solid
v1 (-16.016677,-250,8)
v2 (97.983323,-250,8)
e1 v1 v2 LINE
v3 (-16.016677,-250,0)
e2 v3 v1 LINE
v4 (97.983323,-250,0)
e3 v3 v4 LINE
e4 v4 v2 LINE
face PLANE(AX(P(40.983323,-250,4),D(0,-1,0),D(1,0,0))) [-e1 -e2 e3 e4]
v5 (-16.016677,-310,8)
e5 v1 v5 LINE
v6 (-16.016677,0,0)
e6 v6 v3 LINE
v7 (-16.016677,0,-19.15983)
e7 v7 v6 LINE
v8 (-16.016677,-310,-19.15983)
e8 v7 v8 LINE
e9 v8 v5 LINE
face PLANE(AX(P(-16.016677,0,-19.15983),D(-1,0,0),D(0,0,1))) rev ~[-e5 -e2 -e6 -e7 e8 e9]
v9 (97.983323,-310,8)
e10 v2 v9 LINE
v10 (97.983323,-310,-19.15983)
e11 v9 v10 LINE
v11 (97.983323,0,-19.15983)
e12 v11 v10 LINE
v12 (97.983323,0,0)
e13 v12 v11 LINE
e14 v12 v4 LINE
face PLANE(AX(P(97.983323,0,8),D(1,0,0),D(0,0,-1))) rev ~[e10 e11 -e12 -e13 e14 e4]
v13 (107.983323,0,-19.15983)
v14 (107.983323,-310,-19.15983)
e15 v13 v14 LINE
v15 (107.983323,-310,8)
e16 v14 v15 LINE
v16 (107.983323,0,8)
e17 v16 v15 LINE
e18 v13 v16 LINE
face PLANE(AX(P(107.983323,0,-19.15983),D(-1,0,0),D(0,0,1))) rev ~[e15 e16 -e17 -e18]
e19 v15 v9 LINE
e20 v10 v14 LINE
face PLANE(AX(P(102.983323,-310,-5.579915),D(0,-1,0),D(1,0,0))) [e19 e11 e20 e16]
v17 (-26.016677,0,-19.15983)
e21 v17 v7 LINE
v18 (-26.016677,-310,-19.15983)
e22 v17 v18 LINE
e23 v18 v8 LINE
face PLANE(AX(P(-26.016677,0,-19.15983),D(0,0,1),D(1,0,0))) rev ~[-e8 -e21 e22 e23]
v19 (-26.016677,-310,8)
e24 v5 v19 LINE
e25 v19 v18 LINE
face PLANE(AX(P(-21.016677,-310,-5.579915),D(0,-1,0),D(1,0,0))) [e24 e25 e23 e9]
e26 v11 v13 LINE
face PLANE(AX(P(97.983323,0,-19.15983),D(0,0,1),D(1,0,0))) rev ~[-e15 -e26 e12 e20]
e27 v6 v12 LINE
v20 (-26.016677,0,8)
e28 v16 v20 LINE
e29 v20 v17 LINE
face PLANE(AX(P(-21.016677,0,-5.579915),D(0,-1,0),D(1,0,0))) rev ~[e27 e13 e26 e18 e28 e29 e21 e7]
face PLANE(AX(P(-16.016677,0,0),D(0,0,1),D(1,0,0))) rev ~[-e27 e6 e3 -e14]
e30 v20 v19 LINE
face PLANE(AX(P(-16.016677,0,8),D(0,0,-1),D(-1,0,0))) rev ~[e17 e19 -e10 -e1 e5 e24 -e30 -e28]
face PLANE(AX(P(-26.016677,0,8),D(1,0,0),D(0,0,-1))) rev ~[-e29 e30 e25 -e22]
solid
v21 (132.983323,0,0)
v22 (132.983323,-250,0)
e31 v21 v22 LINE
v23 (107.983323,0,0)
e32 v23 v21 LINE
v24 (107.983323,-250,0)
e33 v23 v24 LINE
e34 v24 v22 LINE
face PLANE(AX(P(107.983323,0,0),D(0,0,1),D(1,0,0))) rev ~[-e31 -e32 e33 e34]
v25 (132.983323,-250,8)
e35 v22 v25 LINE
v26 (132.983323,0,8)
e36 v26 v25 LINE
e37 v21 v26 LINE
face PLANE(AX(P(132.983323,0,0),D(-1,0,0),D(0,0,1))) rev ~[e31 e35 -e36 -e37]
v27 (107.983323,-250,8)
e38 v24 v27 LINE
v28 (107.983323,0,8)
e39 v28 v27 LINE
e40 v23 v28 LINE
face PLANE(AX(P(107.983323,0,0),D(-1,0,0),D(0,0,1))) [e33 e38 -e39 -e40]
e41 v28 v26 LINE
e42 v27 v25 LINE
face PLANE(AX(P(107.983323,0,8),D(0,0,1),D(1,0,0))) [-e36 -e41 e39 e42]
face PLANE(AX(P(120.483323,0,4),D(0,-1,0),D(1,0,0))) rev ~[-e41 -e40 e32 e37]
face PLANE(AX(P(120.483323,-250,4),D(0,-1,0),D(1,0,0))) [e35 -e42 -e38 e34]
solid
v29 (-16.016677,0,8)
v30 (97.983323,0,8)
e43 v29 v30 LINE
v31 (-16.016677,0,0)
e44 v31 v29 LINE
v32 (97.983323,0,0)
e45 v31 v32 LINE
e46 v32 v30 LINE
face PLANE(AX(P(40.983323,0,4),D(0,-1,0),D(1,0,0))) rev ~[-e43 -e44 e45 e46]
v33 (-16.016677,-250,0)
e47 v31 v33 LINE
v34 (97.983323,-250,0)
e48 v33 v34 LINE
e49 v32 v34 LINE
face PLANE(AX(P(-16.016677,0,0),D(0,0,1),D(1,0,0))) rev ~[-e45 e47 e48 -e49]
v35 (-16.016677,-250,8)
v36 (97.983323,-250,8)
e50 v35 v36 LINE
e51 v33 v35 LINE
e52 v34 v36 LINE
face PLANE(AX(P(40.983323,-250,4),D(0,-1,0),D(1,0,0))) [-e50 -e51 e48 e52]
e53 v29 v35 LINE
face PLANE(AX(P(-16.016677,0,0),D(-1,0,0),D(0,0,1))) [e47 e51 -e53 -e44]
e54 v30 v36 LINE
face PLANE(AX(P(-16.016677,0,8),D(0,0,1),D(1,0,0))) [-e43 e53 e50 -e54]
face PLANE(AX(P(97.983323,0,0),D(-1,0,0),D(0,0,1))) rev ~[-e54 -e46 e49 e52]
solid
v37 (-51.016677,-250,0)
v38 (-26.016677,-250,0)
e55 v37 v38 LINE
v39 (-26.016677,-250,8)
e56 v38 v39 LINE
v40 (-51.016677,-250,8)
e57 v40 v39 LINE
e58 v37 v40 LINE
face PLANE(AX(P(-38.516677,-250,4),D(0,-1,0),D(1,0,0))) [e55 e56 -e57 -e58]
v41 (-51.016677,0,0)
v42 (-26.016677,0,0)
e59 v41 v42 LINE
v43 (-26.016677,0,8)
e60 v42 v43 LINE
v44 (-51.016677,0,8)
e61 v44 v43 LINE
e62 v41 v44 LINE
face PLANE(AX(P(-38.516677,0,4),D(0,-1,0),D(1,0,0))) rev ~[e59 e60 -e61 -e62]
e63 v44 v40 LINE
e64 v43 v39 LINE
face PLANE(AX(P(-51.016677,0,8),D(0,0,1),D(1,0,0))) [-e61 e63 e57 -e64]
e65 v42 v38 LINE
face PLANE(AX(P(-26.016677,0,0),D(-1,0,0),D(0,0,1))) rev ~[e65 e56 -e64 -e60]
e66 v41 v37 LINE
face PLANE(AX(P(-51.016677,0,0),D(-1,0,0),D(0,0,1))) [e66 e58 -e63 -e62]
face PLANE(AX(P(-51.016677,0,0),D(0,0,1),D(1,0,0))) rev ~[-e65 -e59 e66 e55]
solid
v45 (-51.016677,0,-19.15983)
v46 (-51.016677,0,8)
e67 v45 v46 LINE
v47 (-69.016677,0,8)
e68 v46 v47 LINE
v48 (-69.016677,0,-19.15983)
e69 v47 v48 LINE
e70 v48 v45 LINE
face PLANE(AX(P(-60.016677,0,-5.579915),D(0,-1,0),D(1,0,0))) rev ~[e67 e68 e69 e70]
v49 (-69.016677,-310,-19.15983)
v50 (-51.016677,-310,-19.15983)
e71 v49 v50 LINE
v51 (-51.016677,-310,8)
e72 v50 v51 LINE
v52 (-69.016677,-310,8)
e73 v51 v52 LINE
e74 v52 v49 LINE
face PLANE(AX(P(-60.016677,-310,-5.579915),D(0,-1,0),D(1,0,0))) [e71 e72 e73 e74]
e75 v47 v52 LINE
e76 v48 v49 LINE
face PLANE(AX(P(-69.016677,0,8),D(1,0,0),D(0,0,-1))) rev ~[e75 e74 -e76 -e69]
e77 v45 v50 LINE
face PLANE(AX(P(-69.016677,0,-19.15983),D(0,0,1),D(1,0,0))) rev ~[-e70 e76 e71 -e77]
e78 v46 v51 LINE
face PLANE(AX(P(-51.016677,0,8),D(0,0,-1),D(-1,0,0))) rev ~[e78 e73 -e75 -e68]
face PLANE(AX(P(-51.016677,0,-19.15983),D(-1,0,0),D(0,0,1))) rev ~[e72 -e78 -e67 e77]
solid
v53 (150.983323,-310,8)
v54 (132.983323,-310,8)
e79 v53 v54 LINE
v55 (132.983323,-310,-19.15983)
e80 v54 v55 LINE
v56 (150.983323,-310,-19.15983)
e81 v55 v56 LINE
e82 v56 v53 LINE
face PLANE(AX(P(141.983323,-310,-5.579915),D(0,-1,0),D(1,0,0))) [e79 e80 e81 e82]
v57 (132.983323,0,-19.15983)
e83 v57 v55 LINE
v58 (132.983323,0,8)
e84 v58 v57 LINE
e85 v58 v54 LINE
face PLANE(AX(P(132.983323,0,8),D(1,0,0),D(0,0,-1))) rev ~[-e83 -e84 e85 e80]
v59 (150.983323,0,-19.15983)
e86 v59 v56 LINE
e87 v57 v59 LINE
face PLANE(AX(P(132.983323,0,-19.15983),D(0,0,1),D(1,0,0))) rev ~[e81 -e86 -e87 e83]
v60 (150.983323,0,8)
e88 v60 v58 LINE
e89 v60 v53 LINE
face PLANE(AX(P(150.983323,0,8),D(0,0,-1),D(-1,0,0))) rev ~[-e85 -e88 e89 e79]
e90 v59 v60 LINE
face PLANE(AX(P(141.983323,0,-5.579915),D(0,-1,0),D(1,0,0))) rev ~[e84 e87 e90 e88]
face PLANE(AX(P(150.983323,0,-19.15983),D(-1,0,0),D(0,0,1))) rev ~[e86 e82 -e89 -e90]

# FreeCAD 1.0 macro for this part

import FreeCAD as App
import Part
import Sketcher


def add_polygon(sketch, points):
    """Adds a closed chain of lines whose ends are joined by coincident constraints."""
    first, n = sketch.GeometryCount, len(points)
    for a, b in zip(points, points[1:] + points[:1]):
        sketch.addGeometry(Part.LineSegment(App.Vector(*a, 0), App.Vector(*b, 0)), False)
    for i in range(n):
        sketch.addConstraint(Sketcher.Constraint("Coincident", first + i, 2, first + (i + 1) % n, 1))

doc = App.newDocument("Part")
body = doc.addObject("PartDesign::Body", "Body")
body.AllowCompound = True

# Sketch on XZ plane
sketch1 = doc.addObject("Sketcher::SketchObject", "Sketch")
body.addObject(sketch1)
sketch1.AttachmentSupport = (doc.XZ_Plane, [""])
sketch1.MapMode = "FlatFace"
add_polygon(sketch1, [(151, 8), (133, 8), (133, -19), (151, -19)])  # lines 0-3
add_polygon(sketch1, [(-69, -19), (-51, -19), (-51, 8), (-69, 8)])  # lines 4-7
sketch1.addConstraint([
    Sketcher.Constraint("Horizontal", 0),
    Sketcher.Constraint("Vertical", 1),
    Sketcher.Constraint("Horizontal", 2),
    Sketcher.Constraint("Vertical", 3),
    Sketcher.Constraint("Horizontal", 4),
    Sketcher.Constraint("Vertical", 5),
    Sketcher.Constraint("Horizontal", 6),
    Sketcher.Constraint("Vertical", 7),
    Sketcher.Constraint("Horizontal", 2, 2, 4, 2),
    Sketcher.Constraint("Horizontal", 3, 2, 5, 2),
    Sketcher.Constraint("Equal", 2, 4),
    Sketcher.Constraint("DistanceX", 0, 2, 0, 1, 18.0),
    Sketcher.Constraint("DistanceY", -1, 1, 0, 2, 8.0),
    Sketcher.Constraint("DistanceX", 4, 2, 1, 2, 184.0),
    Sketcher.Constraint("DistanceY", 1, 2, 1, 1, 27.15983),
    Sketcher.Constraint("DistanceX", -1, 1, 0, 2, 132.983323),
])
pad1 = doc.addObject("PartDesign::Pad", "Pad")
body.addObject(pad1)
pad1.Profile = sketch1
pad1.Length = 310
body2 = doc.addObject("PartDesign::Body", "Body001")

# Sketch on XZ plane
sketch2 = doc.addObject("Sketcher::SketchObject", "Sketch001")
body2.addObject(sketch2)
sketch2.AttachmentSupport = (doc.getObject("XZ_Plane001"), [""])
sketch2.MapMode = "FlatFace"
add_polygon(sketch2, [(-16, 8), (-16, 0), (98, 0), (98, 8)])  # lines 0-3
sketch2.addConstraint([
    Sketcher.Constraint("Vertical", 0),
    Sketcher.Constraint("Horizontal", 1),
    Sketcher.Constraint("Vertical", 2),
    Sketcher.Constraint("Horizontal", 3),
    Sketcher.Constraint("PointOnObject", 0, 2, -1),
    Sketcher.Constraint("DistanceX", 1, 1, 1, 2, 114.0),
    Sketcher.Constraint("DistanceY", 0, 2, 0, 1, 8.0),
    Sketcher.Constraint("DistanceX", 0, 2, -1, 1, 16.016677),
])
pad2 = doc.addObject("PartDesign::Pad", "Pad001")
body2.addObject(pad2)
pad2.Profile = sketch2
pad2.Length = 250

# Sketch on XZ plane
sketch3 = doc.addObject("Sketcher::SketchObject", "Sketch002")
body2.addObject(sketch3)
sketch3.AttachmentSupport = (doc.getObject("XZ_Plane001"), [""])
sketch3.MapMode = "FlatFace"
add_polygon(sketch3, [(-26, 8), (-26, -19), (-16, -19), (-16, 8)])  # lines 0-3
add_polygon(sketch3, [(108, 8), (98, 8), (98, -19), (108, -19)])  # lines 4-7
sketch3.addConstraint([
    Sketcher.Constraint("Vertical", 0),
    Sketcher.Constraint("Horizontal", 1),
    Sketcher.Constraint("Vertical", 2),
    Sketcher.Constraint("Horizontal", 3),
    Sketcher.Constraint("Horizontal", 4),
    Sketcher.Constraint("Vertical", 5),
    Sketcher.Constraint("Horizontal", 6),
    Sketcher.Constraint("Vertical", 7),
    Sketcher.Constraint("Horizontal", 3, 2, 4, 2),
    Sketcher.Constraint("Horizontal", 1, 2, 5, 2),
    Sketcher.Constraint("Equal", 3, 4),
    Sketcher.Constraint("DistanceX", 1, 1, 1, 2, 10.0),
    Sketcher.Constraint("DistanceY", -1, 1, 2, 2, 8.0),
    Sketcher.Constraint("DistanceX", 2, 2, 4, 2, 114.0),
    Sketcher.Constraint("DistanceY", 0, 2, 0, 1, 27.15983),
    Sketcher.Constraint("DistanceX", 0, 2, -1, 1, 26.016677),
])
pad3 = doc.addObject("PartDesign::Pad", "Pad002")
body2.addObject(pad3)
pad3.Profile = sketch3
pad3.Length = 310
body3 = doc.addObject("PartDesign::Body", "Body002")
body3.AllowCompound = True

# Sketch on XZ plane
sketch4 = doc.addObject("Sketcher::SketchObject", "Sketch003")
body3.addObject(sketch4)
sketch4.AttachmentSupport = (doc.getObject("XZ_Plane002"), [""])
sketch4.MapMode = "FlatFace"
add_polygon(sketch4, [(-51, 8), (-51, 0), (-26, 0), (-26, 8)])  # lines 0-3
add_polygon(sketch4, [(108, 8), (108, 0), (133, 0), (133, 8)])  # lines 4-7
add_polygon(sketch4, [(-16, 8), (-16, 0), (98, 0), (98, 8)])  # lines 8-11
sketch4.addConstraint([
    Sketcher.Constraint("Vertical", 0),
    Sketcher.Constraint("Horizontal", 1),
    Sketcher.Constraint("Vertical", 2),
    Sketcher.Constraint("Horizontal", 3),
    Sketcher.Constraint("Vertical", 4),
    Sketcher.Constraint("Horizontal", 5),
    Sketcher.Constraint("Vertical", 6),
    Sketcher.Constraint("Horizontal", 7),
    Sketcher.Constraint("Vertical", 8),
    Sketcher.Constraint("Horizontal", 9),
    Sketcher.Constraint("Vertical", 10),
    Sketcher.Constraint("Horizontal", 11),
    Sketcher.Constraint("PointOnObject", 0, 2, -1),
    Sketcher.Constraint("PointOnObject", 4, 2, -1),
    Sketcher.Constraint("PointOnObject", 8, 2, -1),
    Sketcher.Constraint("Horizontal", 3, 2, 6, 2),
    Sketcher.Constraint("Horizontal", 7, 2, 10, 2),
    Sketcher.Constraint("Equal", 3, 5),
    Sketcher.Constraint("DistanceX", 1, 1, 1, 2, 25.0),
    Sketcher.Constraint("DistanceX", 9, 1, 9, 2, 114.0),
    Sketcher.Constraint("DistanceY", 0, 2, 0, 1, 8.0),
    Sketcher.Constraint("DistanceX", 1, 2, 4, 2, 134.0),
    Sketcher.Constraint("DistanceX", 1, 2, 8, 2, 10.0),
    Sketcher.Constraint("DistanceX", 0, 2, -1, 1, 51.016677),
])
pad4 = doc.addObject("PartDesign::Pad", "Pad003")
body3.addObject(pad4)
pad4.Profile = sketch4
pad4.Length = 250

doc.recompute()
